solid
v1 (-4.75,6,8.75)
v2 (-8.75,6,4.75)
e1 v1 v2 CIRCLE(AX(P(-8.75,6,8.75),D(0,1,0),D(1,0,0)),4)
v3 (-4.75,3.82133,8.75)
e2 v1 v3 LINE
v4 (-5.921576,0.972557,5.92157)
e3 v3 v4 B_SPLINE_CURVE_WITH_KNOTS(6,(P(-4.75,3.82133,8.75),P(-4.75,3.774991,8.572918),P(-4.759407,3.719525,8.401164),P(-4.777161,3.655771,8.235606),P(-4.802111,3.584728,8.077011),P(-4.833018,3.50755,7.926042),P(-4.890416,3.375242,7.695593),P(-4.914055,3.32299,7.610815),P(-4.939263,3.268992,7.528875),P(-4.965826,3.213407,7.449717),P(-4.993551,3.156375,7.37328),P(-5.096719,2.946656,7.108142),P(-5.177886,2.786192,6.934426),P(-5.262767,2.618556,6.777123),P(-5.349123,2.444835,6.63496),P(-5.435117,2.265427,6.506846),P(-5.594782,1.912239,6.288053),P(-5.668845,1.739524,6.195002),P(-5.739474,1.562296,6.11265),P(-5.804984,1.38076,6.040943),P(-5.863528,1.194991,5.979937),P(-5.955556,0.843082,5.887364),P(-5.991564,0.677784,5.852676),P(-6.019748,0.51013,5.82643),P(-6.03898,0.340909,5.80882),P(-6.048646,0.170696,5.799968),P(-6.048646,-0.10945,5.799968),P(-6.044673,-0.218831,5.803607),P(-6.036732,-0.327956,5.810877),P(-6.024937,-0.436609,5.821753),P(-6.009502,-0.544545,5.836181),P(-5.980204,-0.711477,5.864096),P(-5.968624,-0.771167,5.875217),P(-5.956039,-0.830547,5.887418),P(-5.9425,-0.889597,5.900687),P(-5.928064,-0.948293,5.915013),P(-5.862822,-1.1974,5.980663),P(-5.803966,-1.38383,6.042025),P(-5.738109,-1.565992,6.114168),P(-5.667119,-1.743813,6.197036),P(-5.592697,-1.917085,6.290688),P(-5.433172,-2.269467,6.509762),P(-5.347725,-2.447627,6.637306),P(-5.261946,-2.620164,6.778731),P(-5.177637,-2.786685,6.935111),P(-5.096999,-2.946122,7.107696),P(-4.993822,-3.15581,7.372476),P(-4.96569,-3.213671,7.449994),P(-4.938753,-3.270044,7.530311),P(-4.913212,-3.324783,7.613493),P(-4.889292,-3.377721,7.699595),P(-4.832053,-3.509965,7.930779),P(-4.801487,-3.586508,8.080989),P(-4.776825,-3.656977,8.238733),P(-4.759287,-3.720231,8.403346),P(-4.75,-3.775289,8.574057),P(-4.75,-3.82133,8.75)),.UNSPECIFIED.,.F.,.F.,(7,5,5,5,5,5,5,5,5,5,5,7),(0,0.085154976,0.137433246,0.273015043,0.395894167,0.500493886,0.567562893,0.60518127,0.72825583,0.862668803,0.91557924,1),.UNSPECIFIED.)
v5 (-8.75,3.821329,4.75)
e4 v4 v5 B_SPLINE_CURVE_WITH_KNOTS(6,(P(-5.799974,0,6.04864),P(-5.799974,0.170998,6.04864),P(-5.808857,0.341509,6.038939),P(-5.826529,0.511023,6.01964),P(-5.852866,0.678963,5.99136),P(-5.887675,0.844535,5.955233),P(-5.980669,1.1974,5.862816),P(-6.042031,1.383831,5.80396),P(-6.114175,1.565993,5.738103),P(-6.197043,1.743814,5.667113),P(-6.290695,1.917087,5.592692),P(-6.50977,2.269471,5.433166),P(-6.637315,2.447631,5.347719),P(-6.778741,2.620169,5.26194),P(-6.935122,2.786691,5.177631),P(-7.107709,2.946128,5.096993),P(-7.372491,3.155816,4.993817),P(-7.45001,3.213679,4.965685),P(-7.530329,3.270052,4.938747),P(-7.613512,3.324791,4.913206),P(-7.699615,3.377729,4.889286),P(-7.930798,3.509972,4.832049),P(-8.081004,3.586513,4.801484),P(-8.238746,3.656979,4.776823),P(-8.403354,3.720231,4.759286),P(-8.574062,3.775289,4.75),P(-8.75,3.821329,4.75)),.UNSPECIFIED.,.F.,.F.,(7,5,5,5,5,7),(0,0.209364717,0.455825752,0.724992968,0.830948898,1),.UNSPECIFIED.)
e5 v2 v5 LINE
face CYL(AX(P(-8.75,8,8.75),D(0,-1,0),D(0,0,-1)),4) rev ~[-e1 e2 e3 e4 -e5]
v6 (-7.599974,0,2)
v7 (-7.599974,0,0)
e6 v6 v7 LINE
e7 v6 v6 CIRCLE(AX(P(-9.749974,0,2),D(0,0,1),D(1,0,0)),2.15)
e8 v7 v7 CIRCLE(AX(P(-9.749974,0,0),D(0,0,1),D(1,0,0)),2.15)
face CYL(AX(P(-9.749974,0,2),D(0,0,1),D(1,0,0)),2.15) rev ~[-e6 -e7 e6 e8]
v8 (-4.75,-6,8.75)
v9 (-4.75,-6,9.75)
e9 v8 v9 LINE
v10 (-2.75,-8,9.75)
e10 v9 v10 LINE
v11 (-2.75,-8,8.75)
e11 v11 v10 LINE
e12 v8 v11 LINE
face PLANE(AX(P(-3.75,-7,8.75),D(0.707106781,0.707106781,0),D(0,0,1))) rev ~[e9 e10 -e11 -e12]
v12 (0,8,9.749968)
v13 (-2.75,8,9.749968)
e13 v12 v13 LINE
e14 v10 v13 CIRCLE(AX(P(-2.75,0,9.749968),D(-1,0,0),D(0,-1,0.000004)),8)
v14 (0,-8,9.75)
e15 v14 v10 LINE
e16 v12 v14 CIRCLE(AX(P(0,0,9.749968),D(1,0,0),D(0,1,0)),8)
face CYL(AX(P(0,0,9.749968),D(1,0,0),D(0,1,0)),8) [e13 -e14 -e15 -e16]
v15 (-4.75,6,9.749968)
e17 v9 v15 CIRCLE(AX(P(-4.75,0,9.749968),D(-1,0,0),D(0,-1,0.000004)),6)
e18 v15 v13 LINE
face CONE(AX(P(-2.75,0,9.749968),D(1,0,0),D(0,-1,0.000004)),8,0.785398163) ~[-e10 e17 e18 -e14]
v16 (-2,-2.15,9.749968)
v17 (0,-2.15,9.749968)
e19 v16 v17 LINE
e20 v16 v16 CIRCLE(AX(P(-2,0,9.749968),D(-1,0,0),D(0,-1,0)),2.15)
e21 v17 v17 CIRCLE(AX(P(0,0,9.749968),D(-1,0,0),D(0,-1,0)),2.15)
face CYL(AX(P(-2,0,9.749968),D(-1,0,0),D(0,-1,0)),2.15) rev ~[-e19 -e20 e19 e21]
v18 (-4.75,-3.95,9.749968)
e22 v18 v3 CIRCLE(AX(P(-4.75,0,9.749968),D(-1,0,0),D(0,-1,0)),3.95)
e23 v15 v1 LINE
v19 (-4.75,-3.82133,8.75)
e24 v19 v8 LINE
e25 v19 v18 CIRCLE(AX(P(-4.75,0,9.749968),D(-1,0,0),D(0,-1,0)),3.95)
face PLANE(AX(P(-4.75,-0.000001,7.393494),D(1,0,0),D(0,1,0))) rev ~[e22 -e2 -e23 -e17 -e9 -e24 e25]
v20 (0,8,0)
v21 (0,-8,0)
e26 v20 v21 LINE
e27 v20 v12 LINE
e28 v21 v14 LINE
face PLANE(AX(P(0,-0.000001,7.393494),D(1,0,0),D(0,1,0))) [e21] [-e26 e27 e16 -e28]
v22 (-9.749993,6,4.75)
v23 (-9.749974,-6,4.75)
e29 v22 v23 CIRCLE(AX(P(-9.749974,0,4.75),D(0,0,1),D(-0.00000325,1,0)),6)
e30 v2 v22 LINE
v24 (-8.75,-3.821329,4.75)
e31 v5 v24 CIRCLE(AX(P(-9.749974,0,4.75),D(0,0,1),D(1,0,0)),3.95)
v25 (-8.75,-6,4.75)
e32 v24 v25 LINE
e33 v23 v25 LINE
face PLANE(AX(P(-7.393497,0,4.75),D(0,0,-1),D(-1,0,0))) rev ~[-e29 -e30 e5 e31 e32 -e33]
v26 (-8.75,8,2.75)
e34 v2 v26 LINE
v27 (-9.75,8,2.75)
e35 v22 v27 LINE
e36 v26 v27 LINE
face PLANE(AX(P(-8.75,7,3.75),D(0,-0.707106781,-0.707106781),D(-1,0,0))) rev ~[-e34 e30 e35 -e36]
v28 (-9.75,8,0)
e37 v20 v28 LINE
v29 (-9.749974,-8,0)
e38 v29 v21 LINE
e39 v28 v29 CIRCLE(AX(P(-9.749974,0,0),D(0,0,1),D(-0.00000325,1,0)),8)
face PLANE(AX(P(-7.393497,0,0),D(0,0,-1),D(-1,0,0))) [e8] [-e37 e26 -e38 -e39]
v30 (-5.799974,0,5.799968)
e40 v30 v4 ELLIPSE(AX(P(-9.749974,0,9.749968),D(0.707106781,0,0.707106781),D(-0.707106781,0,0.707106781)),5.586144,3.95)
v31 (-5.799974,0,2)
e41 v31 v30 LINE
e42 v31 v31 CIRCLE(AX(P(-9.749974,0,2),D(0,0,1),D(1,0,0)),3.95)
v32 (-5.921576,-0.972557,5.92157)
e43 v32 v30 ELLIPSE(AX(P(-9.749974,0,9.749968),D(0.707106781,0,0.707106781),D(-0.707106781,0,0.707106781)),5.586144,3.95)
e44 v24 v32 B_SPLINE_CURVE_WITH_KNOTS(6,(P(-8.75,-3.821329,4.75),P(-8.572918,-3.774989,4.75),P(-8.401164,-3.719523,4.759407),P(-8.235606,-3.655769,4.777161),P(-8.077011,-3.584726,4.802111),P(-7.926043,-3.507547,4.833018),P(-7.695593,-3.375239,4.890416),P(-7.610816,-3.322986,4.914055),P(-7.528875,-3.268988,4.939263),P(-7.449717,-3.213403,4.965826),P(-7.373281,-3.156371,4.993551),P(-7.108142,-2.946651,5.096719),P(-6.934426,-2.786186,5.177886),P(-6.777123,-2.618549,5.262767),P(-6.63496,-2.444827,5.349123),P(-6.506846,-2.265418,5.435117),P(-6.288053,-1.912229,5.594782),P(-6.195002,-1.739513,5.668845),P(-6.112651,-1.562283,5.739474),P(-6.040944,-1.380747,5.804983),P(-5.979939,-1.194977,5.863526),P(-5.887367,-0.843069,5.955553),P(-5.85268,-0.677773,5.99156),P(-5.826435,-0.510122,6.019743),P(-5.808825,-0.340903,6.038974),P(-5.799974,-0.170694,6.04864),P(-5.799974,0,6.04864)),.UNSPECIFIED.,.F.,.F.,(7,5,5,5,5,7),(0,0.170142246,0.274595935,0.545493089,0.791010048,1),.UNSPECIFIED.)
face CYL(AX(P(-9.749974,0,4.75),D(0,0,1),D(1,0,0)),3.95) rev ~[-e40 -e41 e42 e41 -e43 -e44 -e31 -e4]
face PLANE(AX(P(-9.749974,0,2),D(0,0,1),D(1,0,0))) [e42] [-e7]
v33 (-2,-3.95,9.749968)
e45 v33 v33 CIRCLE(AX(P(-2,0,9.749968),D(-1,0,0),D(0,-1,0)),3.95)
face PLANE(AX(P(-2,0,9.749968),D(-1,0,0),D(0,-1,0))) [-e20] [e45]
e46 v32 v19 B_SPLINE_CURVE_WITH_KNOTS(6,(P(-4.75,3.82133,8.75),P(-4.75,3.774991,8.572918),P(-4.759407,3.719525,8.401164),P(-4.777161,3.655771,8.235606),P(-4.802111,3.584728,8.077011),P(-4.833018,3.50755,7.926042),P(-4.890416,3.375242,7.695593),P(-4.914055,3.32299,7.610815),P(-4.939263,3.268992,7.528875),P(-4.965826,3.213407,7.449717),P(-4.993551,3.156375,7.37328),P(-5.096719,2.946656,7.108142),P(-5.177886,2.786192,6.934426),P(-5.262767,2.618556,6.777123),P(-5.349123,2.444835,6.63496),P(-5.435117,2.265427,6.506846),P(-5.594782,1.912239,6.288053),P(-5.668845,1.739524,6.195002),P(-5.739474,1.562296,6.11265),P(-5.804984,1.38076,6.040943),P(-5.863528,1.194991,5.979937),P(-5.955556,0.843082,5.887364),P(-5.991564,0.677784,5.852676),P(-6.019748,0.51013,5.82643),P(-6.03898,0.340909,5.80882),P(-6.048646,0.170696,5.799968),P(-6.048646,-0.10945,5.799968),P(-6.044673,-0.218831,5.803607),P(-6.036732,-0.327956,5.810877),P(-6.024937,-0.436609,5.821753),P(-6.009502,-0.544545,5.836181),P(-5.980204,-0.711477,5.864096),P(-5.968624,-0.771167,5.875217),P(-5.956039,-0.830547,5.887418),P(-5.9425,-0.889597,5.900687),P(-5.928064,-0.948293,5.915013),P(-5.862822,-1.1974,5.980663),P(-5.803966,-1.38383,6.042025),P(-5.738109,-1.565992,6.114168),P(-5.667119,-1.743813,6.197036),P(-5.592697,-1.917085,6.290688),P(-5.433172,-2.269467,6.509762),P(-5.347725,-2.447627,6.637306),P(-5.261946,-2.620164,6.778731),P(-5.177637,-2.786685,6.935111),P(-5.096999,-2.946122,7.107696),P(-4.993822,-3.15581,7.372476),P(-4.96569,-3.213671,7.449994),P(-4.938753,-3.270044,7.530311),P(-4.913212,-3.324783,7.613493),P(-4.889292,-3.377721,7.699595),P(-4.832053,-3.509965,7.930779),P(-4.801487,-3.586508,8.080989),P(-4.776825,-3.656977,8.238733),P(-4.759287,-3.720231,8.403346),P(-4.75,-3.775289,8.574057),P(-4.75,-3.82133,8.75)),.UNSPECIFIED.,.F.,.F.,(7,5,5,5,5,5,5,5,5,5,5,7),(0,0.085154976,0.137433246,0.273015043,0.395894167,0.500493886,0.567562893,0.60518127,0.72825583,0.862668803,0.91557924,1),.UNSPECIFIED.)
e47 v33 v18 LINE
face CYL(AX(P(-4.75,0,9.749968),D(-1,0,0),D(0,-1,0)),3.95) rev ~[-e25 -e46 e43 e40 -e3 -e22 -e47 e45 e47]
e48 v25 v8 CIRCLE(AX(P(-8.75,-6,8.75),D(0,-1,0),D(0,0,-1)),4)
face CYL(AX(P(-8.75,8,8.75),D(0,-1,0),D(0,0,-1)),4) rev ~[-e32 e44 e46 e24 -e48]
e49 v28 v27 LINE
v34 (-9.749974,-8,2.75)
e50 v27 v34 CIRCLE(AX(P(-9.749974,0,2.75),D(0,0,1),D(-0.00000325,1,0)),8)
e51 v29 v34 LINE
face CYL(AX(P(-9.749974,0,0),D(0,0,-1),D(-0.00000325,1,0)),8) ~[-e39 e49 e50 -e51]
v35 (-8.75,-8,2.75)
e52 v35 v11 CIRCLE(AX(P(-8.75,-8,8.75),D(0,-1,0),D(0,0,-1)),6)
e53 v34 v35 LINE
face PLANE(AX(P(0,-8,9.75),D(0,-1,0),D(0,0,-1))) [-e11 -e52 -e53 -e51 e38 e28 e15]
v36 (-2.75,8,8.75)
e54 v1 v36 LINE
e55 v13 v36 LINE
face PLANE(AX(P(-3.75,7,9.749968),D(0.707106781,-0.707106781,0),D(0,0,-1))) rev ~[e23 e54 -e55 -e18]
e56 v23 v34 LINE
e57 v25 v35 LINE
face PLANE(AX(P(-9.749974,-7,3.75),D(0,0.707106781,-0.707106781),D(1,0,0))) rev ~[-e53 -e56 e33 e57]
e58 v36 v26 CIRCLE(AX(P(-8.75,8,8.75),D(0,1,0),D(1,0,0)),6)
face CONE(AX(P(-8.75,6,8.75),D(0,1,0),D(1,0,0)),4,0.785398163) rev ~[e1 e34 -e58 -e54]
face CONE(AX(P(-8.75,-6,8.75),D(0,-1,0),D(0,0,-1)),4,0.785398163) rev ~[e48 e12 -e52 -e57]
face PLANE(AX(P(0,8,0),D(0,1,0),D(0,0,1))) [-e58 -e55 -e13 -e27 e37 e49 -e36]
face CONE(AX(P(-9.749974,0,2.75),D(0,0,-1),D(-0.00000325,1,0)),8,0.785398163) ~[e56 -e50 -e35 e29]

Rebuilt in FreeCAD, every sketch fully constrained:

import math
import FreeCAD as App
import Part
import Sketcher
Q = App.Units.Quantity


def edges_at(feature, points):
    """Names of the edges that pass closest to the given points."""
    edges = feature.Shape.Edges
    near = lambda p: min(range(len(edges)), key=lambda i: edges[i].distToShape(Part.Vertex(*p))[0])
    return sorted({f"Edge{near(p) + 1}" for p in points})

doc = App.newDocument("Part")
body = doc.addObject("PartDesign::Body", "Body")

# Sketch on XY plane
sketch1 = doc.addObject("Sketcher::SketchObject", "Sketch")
body.addObject(sketch1)
sketch1.AttachmentSupport = (doc.XY_Plane, [""])
sketch1.MapMode = "FlatFace"
sketch1.addGeometry([
    Part.LineSegment(App.Vector(0, 8, 0), App.Vector(-10, 8, 0)),
    Part.ArcOfCircle(Part.Circle(App.Vector(-10, 0, 0), App.Vector(0, 0, 1), 8), math.radians(90), math.radians(270)),
    Part.LineSegment(App.Vector(-10, -8, 0), App.Vector(0, -8, 0)),
    Part.LineSegment(App.Vector(0, -8, 0), App.Vector(0, 8, 0)),
], False)
sketch1.addConstraint([
    Sketcher.Constraint("Coincident", 0, 2, 1, 1),
    Sketcher.Constraint("Tangent", 1, 2, 2, 1),
    Sketcher.Constraint("Coincident", 2, 2, 3, 1),
    Sketcher.Constraint("Coincident", 3, 2, 0, 1),
    Sketcher.Constraint("Horizontal", 0),
    Sketcher.Constraint("Horizontal", 2),
    Sketcher.Constraint("Vertical", 3),
    Sketcher.Constraint("Symmetric", 2, 2, 3, 2, -1, 1),
    Sketcher.Constraint("Radius", 1, Q("8 mm")),
    Sketcher.Constraint("DistanceX", 0, 2, 0, 1, Q("9.75 mm")),
    Sketcher.Constraint("DistanceX", 2, 1, 2, 2, Q("9.749974 mm")),
])
pad1 = doc.addObject("PartDesign::Pad", "Pad")
body.addObject(pad1)
pad1.Profile = sketch1
pad1.Length = 4.75

# Sketch on YZ plane
sketch2 = doc.addObject("Sketcher::SketchObject", "Sketch001")
body.addObject(sketch2)
sketch2.AttachmentSupport = (doc.YZ_Plane, [""])
sketch2.MapMode = "FlatFace"
sketch2.addGeometry([
    Part.LineSegment(App.Vector(-8, 10, 0), App.Vector(-8, 0, 0)),
    Part.LineSegment(App.Vector(-8, 0, 0), App.Vector(8, 0, 0)),
    Part.LineSegment(App.Vector(8, 0, 0), App.Vector(8, 10, 0)),
    Part.ArcOfCircle(Part.Circle(App.Vector(0, 10, 0), App.Vector(0, 0, 1), 8), math.radians(0), math.radians(180)),
], False)
sketch2.addConstraint([
    Sketcher.Constraint("Coincident", 0, 2, 1, 1),
    Sketcher.Constraint("Coincident", 1, 2, 2, 1),
    Sketcher.Constraint("Tangent", 2, 2, 3, 1),
    Sketcher.Constraint("Coincident", 3, 2, 0, 1),
    Sketcher.Constraint("Vertical", 0),
    Sketcher.Constraint("Horizontal", 1),
    Sketcher.Constraint("Vertical", 2),
    Sketcher.Constraint("Symmetric", 0, 2, 1, 2, -1, 1),
    Sketcher.Constraint("Radius", 3, Q("8 mm")),
    Sketcher.Constraint("DistanceY", 0, 2, 0, 1, Q("9.75 mm")),
    Sketcher.Constraint("DistanceY", 2, 1, 2, 2, Q("9.749968 mm")),
])
pad2 = doc.addObject("PartDesign::Pad", "Pad001")
body.addObject(pad2)
pad2.Profile = sketch2
pad2.Length = 4.75
pad2.Reversed = True
doc.recompute()

fillet = doc.addObject("PartDesign::Fillet", "Fillet")
body.addObject(fillet)
fillet.Base = (pad2, edges_at(pad2, [(-4.75, 0, 4.75)]))
fillet.Radius = 4
doc.recompute()

chamfer = doc.addObject("PartDesign::Chamfer", "Chamfer")
body.addObject(chamfer)
chamfer.Base = (fillet, edges_at(fillet, [(-17.75, 0, 4.75)]))
chamfer.Size = 2

# Sketch on XY plane
sketch3 = doc.addObject("Sketcher::SketchObject", "Sketch002")
body.addObject(sketch3)
sketch3.AttachmentSupport = (doc.XY_Plane, [""])
sketch3.MapMode = "FlatFace"
sketch3.AttachmentOffset = App.Placement(App.Vector(0, 0, 4.75), App.Rotation())
sketch3.addGeometry(Part.Circle(App.Vector(-9.7, 0, 0), App.Vector(0, 0, 1), 4), False)
sketch3.addConstraint([
    Sketcher.Constraint("PointOnObject", 0, 3, -1),
    Sketcher.Constraint("Diameter", 0, Q("7.9 mm")),
    Sketcher.Constraint("DistanceX", 0, 3, -1, 1, Q("9.749974 mm")),
])
pocket1 = doc.addObject("PartDesign::Pocket", "Pocket")
body.addObject(pocket1)
pocket1.Profile = sketch3
pocket1.Length = 5.5
pocket1.Midplane = True

# Sketch on YZ plane
sketch4 = doc.addObject("Sketcher::SketchObject", "Sketch003")
body.addObject(sketch4)
sketch4.AttachmentSupport = (doc.YZ_Plane, [""])
sketch4.MapMode = "FlatFace"
sketch4.AttachmentOffset = App.Placement(App.Vector(0, 0, -4.75), App.Rotation())
sketch4.addGeometry(Part.Circle(App.Vector(0, 9.7, 0), App.Vector(0, 0, 1), 4), False)
sketch4.addConstraint([
    Sketcher.Constraint("PointOnObject", 0, 3, -2),
    Sketcher.Constraint("Diameter", 0, Q("7.9 mm")),
    Sketcher.Constraint("DistanceY", -1, 1, 0, 3, Q("9.749968 mm")),
])
pocket2 = doc.addObject("PartDesign::Pocket", "Pocket001")
body.addObject(pocket2)
pocket2.Profile = sketch4
pocket2.Length = 5.5
pocket2.Midplane = True

# Sketch on YZ plane
sketch5 = doc.addObject("Sketcher::SketchObject", "Sketch004")
body.addObject(sketch5)
sketch5.AttachmentSupport = (doc.YZ_Plane, [""])
sketch5.MapMode = "FlatFace"
sketch5.AttachmentOffset = App.Placement(App.Vector(0, 0, -2), App.Rotation())
sketch5.addGeometry(Part.Circle(App.Vector(0, 9.7, 0), App.Vector(0, 0, 1), 2.1), False)
sketch5.addConstraint([
    Sketcher.Constraint("PointOnObject", 0, 3, -2),
    Sketcher.Constraint("Diameter", 0, Q("4.3 mm")),
    Sketcher.Constraint("DistanceY", -1, 1, 0, 3, Q("9.749968 mm")),
])
pocket3 = doc.addObject("PartDesign::Pocket", "Pocket002")
body.addObject(pocket3)
pocket3.Profile = sketch5
pocket3.Type = "ThroughAll"
pocket3.Reversed = True

# Sketch on XY plane
sketch6 = doc.addObject("Sketcher::SketchObject", "Sketch005")
body.addObject(sketch6)
sketch6.AttachmentSupport = (doc.XY_Plane, [""])
sketch6.MapMode = "FlatFace"
sketch6.AttachmentOffset = App.Placement(App.Vector(0, 0, 2), App.Rotation())
sketch6.addGeometry(Part.Circle(App.Vector(-9.7, 0, 0), App.Vector(0, 0, 1), 2.1), False)
sketch6.addConstraint([
    Sketcher.Constraint("PointOnObject", 0, 3, -1),
    Sketcher.Constraint("Diameter", 0, Q("4.3 mm")),
    Sketcher.Constraint("DistanceX", 0, 3, -1, 1, Q("9.749974 mm")),
])
pocket4 = doc.addObject("PartDesign::Pocket", "Pocket003")
body.addObject(pocket4)
pocket4.Profile = sketch6
pocket4.Type = "ThroughAll"

doc.recompute()
